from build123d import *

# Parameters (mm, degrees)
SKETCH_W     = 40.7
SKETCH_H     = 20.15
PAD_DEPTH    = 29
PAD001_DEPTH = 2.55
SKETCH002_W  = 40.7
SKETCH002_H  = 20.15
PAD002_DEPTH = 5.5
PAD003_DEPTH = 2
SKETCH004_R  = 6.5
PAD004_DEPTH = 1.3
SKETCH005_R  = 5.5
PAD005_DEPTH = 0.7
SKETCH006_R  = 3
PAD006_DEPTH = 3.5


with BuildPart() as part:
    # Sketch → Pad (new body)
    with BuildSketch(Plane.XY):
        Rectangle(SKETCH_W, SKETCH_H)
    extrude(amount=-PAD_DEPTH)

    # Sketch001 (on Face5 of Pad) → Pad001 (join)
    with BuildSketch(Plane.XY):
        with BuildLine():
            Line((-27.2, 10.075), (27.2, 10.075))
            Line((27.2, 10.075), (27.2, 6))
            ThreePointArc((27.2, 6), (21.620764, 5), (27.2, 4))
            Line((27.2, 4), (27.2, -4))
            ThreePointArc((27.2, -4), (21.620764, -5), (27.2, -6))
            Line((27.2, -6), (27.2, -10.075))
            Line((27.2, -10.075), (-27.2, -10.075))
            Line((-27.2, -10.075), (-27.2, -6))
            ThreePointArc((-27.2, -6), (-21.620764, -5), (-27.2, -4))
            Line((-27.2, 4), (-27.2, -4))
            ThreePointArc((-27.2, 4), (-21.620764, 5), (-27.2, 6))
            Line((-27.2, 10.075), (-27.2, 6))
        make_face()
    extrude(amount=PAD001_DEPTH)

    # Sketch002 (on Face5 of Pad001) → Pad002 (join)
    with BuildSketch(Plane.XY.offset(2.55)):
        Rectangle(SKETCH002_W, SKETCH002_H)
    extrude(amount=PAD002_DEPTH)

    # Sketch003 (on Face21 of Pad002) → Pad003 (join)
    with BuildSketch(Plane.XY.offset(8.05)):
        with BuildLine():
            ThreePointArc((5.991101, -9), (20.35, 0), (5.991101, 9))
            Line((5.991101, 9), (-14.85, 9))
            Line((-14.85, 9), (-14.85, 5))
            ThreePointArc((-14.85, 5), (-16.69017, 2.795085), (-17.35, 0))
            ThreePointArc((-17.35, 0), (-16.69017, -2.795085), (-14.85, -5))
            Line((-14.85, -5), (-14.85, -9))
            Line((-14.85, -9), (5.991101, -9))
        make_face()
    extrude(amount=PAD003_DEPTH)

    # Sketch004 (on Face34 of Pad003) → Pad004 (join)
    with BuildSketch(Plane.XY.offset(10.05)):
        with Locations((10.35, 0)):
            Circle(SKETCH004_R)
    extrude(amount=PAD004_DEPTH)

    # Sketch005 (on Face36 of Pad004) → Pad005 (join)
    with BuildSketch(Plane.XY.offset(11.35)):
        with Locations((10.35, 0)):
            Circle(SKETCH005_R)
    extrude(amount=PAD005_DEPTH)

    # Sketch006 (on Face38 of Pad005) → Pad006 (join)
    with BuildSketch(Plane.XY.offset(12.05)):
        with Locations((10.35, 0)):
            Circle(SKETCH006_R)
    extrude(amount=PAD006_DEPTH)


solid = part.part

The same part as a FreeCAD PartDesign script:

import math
import FreeCAD as App
import Part
import Sketcher

V = App.Vector
Q = App.Units.Quantity


def add_polygon(sketch, points):
    """Adds a closed chain of lines whose ends are joined by coincident constraints."""
    first, n = sketch.GeometryCount, len(points)
    for a, b in zip(points, points[1:] + points[:1]):
        sketch.addGeometry(Part.LineSegment(App.Vector(*a, 0), App.Vector(*b, 0)), False)
    for i in range(n):
        sketch.addConstraint(Sketcher.Constraint("Coincident", first + i, 2, first + (i + 1) % n, 1))

doc = App.newDocument("Part")
body = doc.addObject("PartDesign::Body", "Body")

# Sketch on XY plane
sketch1 = body.newObject("Sketcher::SketchObject", "Sketch")
sketch1.AttachmentSupport = (doc.getObject("XY_Plane"), [""])
sketch1.MapMode = "FlatFace"
add_polygon(sketch1, [(-20, 10), (-20, -10), (20, -10), (20, 10)])  # lines 0-3
sketch1.addConstraint(Sketcher.Constraint("Vertical", 0))
sketch1.addConstraint(Sketcher.Constraint("Horizontal", 1))
sketch1.addConstraint(Sketcher.Constraint("Vertical", 2))
sketch1.addConstraint(Sketcher.Constraint("Horizontal", 3))
sketch1.addConstraint(Sketcher.Constraint("Symmetric", 0, 2, 2, 2, -1, 1))
sketch1.addConstraint(Sketcher.Constraint("DistanceX", 1, 1, 1, 2, Q("40.7 mm")))
sketch1.addConstraint(Sketcher.Constraint("DistanceY", 0, 2, 0, 1, Q("20.15 mm")))
pad1 = body.newObject("PartDesign::Pad", "Pad")
pad1.Profile = sketch1
pad1.Length = 29
pad1.Reversed = True

# Sketch on XY plane
sketch2 = body.newObject("Sketcher::SketchObject", "Sketch001")
sketch2.AttachmentSupport = (doc.getObject("XY_Plane"), [""])
sketch2.MapMode = "FlatFace"
sketch2.addGeometry(Part.LineSegment(V(27.2, 10.1, 0), V(-27.2, 10.1, 0)), False)
sketch2.addGeometry(Part.LineSegment(V(-27.2, 10.1, 0), V(-27.2, 6, 0)), False)
sketch2.addGeometry(Part.ArcOfCircle(Part.Circle(V(-24.5, 5, 0), V(0, 0, 1), 2.9), math.radians(-160), math.radians(160)), False)
sketch2.addGeometry(Part.LineSegment(V(-27.2, 4, 0), V(-27.2, -4, 0)), False)
sketch2.addGeometry(Part.ArcOfCircle(Part.Circle(V(-24.5, -5, 0), V(0, 0, 1), 2.9), math.radians(-160), math.radians(160)), False)
sketch2.addGeometry(Part.LineSegment(V(-27.2, -6, 0), V(-27.2, -10.1, 0)), False)
sketch2.addGeometry(Part.LineSegment(V(-27.2, -10.1, 0), V(27.2, -10.1, 0)), False)
sketch2.addGeometry(Part.LineSegment(V(27.2, -10.1, 0), V(27.2, -6, 0)), False)
sketch2.addGeometry(Part.ArcOfCircle(Part.Circle(V(24.5, -5, 0), V(0, 0, 1), 2.9), math.radians(20), math.radians(340)), False)
sketch2.addGeometry(Part.LineSegment(V(27.2, -4, 0), V(27.2, 4, 0)), False)
sketch2.addGeometry(Part.ArcOfCircle(Part.Circle(V(24.5, 5, 0), V(0, 0, 1), 2.9), math.radians(20), math.radians(340)), False)
sketch2.addGeometry(Part.LineSegment(V(27.2, 6, 0), V(27.2, 10.1, 0)), False)
sketch2.addConstraint(Sketcher.Constraint("Coincident", 0, 2, 1, 1))
sketch2.addConstraint(Sketcher.Constraint("Coincident", 1, 2, 2, 2))
sketch2.addConstraint(Sketcher.Constraint("Coincident", 2, 1, 3, 1))
sketch2.addConstraint(Sketcher.Constraint("Coincident", 3, 2, 4, 2))
sketch2.addConstraint(Sketcher.Constraint("Coincident", 4, 1, 5, 1))
sketch2.addConstraint(Sketcher.Constraint("Coincident", 5, 2, 6, 1))
sketch2.addConstraint(Sketcher.Constraint("Coincident", 6, 2, 7, 1))
sketch2.addConstraint(Sketcher.Constraint("Coincident", 7, 2, 8, 2))
sketch2.addConstraint(Sketcher.Constraint("Coincident", 8, 1, 9, 1))
sketch2.addConstraint(Sketcher.Constraint("Coincident", 9, 2, 10, 2))
sketch2.addConstraint(Sketcher.Constraint("Coincident", 10, 1, 11, 1))
sketch2.addConstraint(Sketcher.Constraint("Coincident", 11, 2, 0, 1))
sketch2.addConstraint(Sketcher.Constraint("Horizontal", 0))
sketch2.addConstraint(Sketcher.Constraint("Vertical", 1))
sketch2.addConstraint(Sketcher.Constraint("Vertical", 3))
sketch2.addConstraint(Sketcher.Constraint("Vertical", 5))
sketch2.addConstraint(Sketcher.Constraint("Horizontal", 6))
sketch2.addConstraint(Sketcher.Constraint("Vertical", 7))
sketch2.addConstraint(Sketcher.Constraint("Vertical", 9))
sketch2.addConstraint(Sketcher.Constraint("Vertical", 11))
sketch2.addConstraint(Sketcher.Constraint("Equal", 2, 4))
sketch2.addConstraint(Sketcher.Constraint("Equal", 4, 8))
sketch2.addConstraint(Sketcher.Constraint("Equal", 8, 10))
sketch2.addConstraint(Sketcher.Constraint("Symmetric", 2, 3, 8, 3, -1, 1))
sketch2.addConstraint(Sketcher.Constraint("Symmetric", 4, 3, 10, 3, -1, 1))
sketch2.addConstraint(Sketcher.Constraint("Symmetric", 0, 2, 6, 2, -1, 1))
sketch2.addConstraint(Sketcher.Constraint("Symmetric", 4, 3, 8, 3, -2))
sketch2.addConstraint(Sketcher.Constraint("Horizontal", 4, 1, 7, 2))
sketch2.addConstraint(Sketcher.Constraint("Horizontal", 3, 2, 8, 1))
sketch2.addConstraint(Sketcher.Constraint("Horizontal", 1, 2, 10, 1))
sketch2.addConstraint(Sketcher.Constraint("Vertical", 1, 2, 2, 1))
sketch2.addConstraint(Sketcher.Constraint("DistanceY", 3, 2, 3, 1, Q("8 mm")))
sketch2.addConstraint(Sketcher.Constraint("DistanceX", 0, 2, 0, 1, Q("54.4 mm")))
sketch2.addConstraint(Sketcher.Constraint("DistanceY", -1, 1, 2, 3, Q("5 mm")))
sketch2.addConstraint(Sketcher.Constraint("DistanceX", 4, 3, 8, 3, Q("49 mm")))
sketch2.addConstraint(Sketcher.Constraint("DistanceY", 1, 2, 1, 1, Q("4.075 mm")))
pad2 = body.newObject("PartDesign::Pad", "Pad001")
pad2.Profile = sketch2
pad2.Length = 2.55

# Sketch on XY plane
sketch3 = body.newObject("Sketcher::SketchObject", "Sketch002")
sketch3.AttachmentSupport = (doc.getObject("XY_Plane"), [""])
sketch3.MapMode = "FlatFace"
sketch3.AttachmentOffset = App.Placement(V(0, 0, 2.55), App.Rotation())
add_polygon(sketch3, [(-20, 10), (-20, -10), (20, -10), (20, 10)])  # lines 0-3
sketch3.addConstraint(Sketcher.Constraint("Vertical", 0))
sketch3.addConstraint(Sketcher.Constraint("Horizontal", 1))
sketch3.addConstraint(Sketcher.Constraint("Vertical", 2))
sketch3.addConstraint(Sketcher.Constraint("Horizontal", 3))
sketch3.addConstraint(Sketcher.Constraint("Symmetric", 0, 2, 2, 2, -1, 1))
sketch3.addConstraint(Sketcher.Constraint("DistanceX", 1, 1, 1, 2, Q("40.7 mm")))
sketch3.addConstraint(Sketcher.Constraint("DistanceY", 0, 2, 0, 1, Q("20.15 mm")))
pad3 = body.newObject("PartDesign::Pad", "Pad002")
pad3.Profile = sketch3
pad3.Length = 5.5

# Sketch on XY plane
sketch4 = body.newObject("Sketcher::SketchObject", "Sketch003")
sketch4.AttachmentSupport = (doc.getObject("XY_Plane"), [""])
sketch4.MapMode = "FlatFace"
sketch4.AttachmentOffset = App.Placement(V(0, 0, 8.05), App.Rotation())
sketch4.addGeometry(Part.ArcOfCircle(Part.Circle(V(10.3, 0, 0), V(0, 0, 1), 10), math.radians(-116), math.radians(116)), False)
sketch4.addGeometry(Part.LineSegment(V(6, 9, 0), V(-14.8, 9, 0)), False)
sketch4.addGeometry(Part.LineSegment(V(-14.8, 9, 0), V(-14.8, 5, 0)), False)
sketch4.addGeometry(Part.ArcOfCircle(Part.Circle(V(-11.1, 0, 0), V(0, 0, 1), 6.2), math.radians(127), math.radians(180)), False)
sketch4.addGeometry(Part.ArcOfCircle(Part.Circle(V(-11.1, 0, 0), V(0, 0, 1), 6.2), math.radians(180), math.radians(233)), False)
sketch4.addGeometry(Part.LineSegment(V(-14.8, -5, 0), V(-14.8, -9, 0)), False)
sketch4.addGeometry(Part.LineSegment(V(-14.8, -9, 0), V(6, -9, 0)), False)
sketch4.addConstraint(Sketcher.Constraint("Coincident", 0, 2, 1, 1))
sketch4.addConstraint(Sketcher.Constraint("Coincident", 1, 2, 2, 1))
sketch4.addConstraint(Sketcher.Constraint("Coincident", 2, 2, 3, 1))
sketch4.addConstraint(Sketcher.Constraint("Tangent", 3, 2, 4, 1))
sketch4.addConstraint(Sketcher.Constraint("Coincident", 4, 2, 5, 1))
sketch4.addConstraint(Sketcher.Constraint("Coincident", 5, 2, 6, 1))
sketch4.addConstraint(Sketcher.Constraint("Coincident", 6, 2, 0, 1))
sketch4.addConstraint(Sketcher.Constraint("Horizontal", 1))
sketch4.addConstraint(Sketcher.Constraint("Vertical", 2))
sketch4.addConstraint(Sketcher.Constraint("Vertical", 5))
sketch4.addConstraint(Sketcher.Constraint("Horizontal", 6))
sketch4.addConstraint(Sketcher.Constraint("Equal", 3, 4))
sketch4.addConstraint(Sketcher.Constraint("Symmetric", 2, 2, 4, 2, -1))
sketch4.addConstraint(Sketcher.Constraint("Symmetric", 0, 2, 6, 2, -1))
sketch4.addConstraint(Sketcher.Constraint("PointOnObject", 3, 2, -1))
sketch4.addConstraint(Sketcher.Constraint("Radius", 0, Q("10 mm")))
sketch4.addConstraint(Sketcher.Constraint("DistanceY", 2, 2, 2, 1, Q("4 mm")))
sketch4.addConstraint(Sketcher.Constraint("Radius", 3, Q("6.249999 mm")))
sketch4.addConstraint(Sketcher.Constraint("DistanceY", -1, 1, 0, 2, Q("9 mm")))
sketch4.addConstraint(Sketcher.Constraint("DistanceX", 3, 3, -1, 1, Q("11.100001 mm")))
sketch4.addConstraint(Sketcher.Constraint("DistanceX", 1, 2, 0, 3, Q("25.2 mm")))
pad4 = body.newObject("PartDesign::Pad", "Pad003")
pad4.Profile = sketch4
pad4.Length = 2

# Sketch on XY plane
sketch5 = body.newObject("Sketcher::SketchObject", "Sketch004")
sketch5.AttachmentSupport = (doc.getObject("XY_Plane"), [""])
sketch5.MapMode = "FlatFace"
sketch5.AttachmentOffset = App.Placement(V(0, 0, 10.05), App.Rotation())
sketch5.addGeometry(Part.Circle(V(10, 0, 0), V(0, 0, 1), 6), False)
sketch5.addConstraint(Sketcher.Constraint("PointOnObject", 0, 3, -1))
sketch5.addConstraint(Sketcher.Constraint("Diameter", 0, Q("13 mm")))
sketch5.addConstraint(Sketcher.Constraint("DistanceX", -1, 1, 0, 3, Q("10.35 mm")))
pad5 = body.newObject("PartDesign::Pad", "Pad004")
pad5.Profile = sketch5
pad5.Length = 1.3

# Sketch on XY plane
sketch6 = body.newObject("Sketcher::SketchObject", "Sketch005")
sketch6.AttachmentSupport = (doc.getObject("XY_Plane"), [""])
sketch6.MapMode = "FlatFace"
sketch6.AttachmentOffset = App.Placement(V(0, 0, 11.35), App.Rotation())
sketch6.addGeometry(Part.Circle(V(10, 0, 0), V(0, 0, 1), 6), False)
sketch6.addConstraint(Sketcher.Constraint("PointOnObject", 0, 3, -1))
sketch6.addConstraint(Sketcher.Constraint("Diameter", 0, Q("11 mm")))
sketch6.addConstraint(Sketcher.Constraint("DistanceX", -1, 1, 0, 3, Q("10.35 mm")))
pad6 = body.newObject("PartDesign::Pad", "Pad005")
pad6.Profile = sketch6
pad6.Length = 0.7

# Sketch on XY plane
sketch7 = body.newObject("Sketcher::SketchObject", "Sketch006")
sketch7.AttachmentSupport = (doc.getObject("XY_Plane"), [""])
sketch7.MapMode = "FlatFace"
sketch7.AttachmentOffset = App.Placement(V(0, 0, 12.05), App.Rotation())
sketch7.addGeometry(Part.Circle(V(10.3, 0, 0), V(0, 0, 1), 3), False)
sketch7.addConstraint(Sketcher.Constraint("PointOnObject", 0, 3, -1))
sketch7.addConstraint(Sketcher.Constraint("Diameter", 0, Q("6 mm")))
sketch7.addConstraint(Sketcher.Constraint("DistanceX", -1, 1, 0, 3, Q("10.35 mm")))
pad7 = body.newObject("PartDesign::Pad", "Pad006")
pad7.Profile = sketch7
pad7.Length = 3.5

doc.recompute()
